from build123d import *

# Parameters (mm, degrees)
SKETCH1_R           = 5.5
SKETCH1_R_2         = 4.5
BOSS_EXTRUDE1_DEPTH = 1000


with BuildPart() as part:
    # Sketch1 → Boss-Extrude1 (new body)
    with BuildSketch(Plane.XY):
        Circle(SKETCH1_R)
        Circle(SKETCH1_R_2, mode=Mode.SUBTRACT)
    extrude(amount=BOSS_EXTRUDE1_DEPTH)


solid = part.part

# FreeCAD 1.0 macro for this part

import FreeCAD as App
import Part
import Sketcher
from FreeCAD import Vector
Q = App.Units.Quantity

doc = App.newDocument("Part")
body = doc.addObject("PartDesign::Body", "Body")

# Sketch on XY plane
sketch1 = body.newObject("Sketcher::SketchObject", "Sketch")
sketch1.AttachmentSupport = (doc.getObject("XY_Plane"), [""])
sketch1.MapMode = "FlatFace"
sketch1.addGeometry(Part.Circle(Vector(0, 0, 0), Vector(0, 0, 1), 5.5), False)
sketch1.addGeometry(Part.Circle(Vector(0, 0, 0), Vector(0, 0, 1), 4.5), False)
sketch1.addConstraint(Sketcher.Constraint("Coincident", 0, 3, -1, 1))
sketch1.addConstraint(Sketcher.Constraint("Coincident", 1, 3, -1, 1))
sketch1.addConstraint(Sketcher.Constraint("Diameter", 0, Q("11 mm")))
sketch1.addConstraint(Sketcher.Constraint("Diameter", 1, Q("9 mm")))
pad1 = body.newObject("PartDesign::Pad", "Pad")
pad1.Profile = sketch1
pad1.Length = 1000

doc.recompute()
